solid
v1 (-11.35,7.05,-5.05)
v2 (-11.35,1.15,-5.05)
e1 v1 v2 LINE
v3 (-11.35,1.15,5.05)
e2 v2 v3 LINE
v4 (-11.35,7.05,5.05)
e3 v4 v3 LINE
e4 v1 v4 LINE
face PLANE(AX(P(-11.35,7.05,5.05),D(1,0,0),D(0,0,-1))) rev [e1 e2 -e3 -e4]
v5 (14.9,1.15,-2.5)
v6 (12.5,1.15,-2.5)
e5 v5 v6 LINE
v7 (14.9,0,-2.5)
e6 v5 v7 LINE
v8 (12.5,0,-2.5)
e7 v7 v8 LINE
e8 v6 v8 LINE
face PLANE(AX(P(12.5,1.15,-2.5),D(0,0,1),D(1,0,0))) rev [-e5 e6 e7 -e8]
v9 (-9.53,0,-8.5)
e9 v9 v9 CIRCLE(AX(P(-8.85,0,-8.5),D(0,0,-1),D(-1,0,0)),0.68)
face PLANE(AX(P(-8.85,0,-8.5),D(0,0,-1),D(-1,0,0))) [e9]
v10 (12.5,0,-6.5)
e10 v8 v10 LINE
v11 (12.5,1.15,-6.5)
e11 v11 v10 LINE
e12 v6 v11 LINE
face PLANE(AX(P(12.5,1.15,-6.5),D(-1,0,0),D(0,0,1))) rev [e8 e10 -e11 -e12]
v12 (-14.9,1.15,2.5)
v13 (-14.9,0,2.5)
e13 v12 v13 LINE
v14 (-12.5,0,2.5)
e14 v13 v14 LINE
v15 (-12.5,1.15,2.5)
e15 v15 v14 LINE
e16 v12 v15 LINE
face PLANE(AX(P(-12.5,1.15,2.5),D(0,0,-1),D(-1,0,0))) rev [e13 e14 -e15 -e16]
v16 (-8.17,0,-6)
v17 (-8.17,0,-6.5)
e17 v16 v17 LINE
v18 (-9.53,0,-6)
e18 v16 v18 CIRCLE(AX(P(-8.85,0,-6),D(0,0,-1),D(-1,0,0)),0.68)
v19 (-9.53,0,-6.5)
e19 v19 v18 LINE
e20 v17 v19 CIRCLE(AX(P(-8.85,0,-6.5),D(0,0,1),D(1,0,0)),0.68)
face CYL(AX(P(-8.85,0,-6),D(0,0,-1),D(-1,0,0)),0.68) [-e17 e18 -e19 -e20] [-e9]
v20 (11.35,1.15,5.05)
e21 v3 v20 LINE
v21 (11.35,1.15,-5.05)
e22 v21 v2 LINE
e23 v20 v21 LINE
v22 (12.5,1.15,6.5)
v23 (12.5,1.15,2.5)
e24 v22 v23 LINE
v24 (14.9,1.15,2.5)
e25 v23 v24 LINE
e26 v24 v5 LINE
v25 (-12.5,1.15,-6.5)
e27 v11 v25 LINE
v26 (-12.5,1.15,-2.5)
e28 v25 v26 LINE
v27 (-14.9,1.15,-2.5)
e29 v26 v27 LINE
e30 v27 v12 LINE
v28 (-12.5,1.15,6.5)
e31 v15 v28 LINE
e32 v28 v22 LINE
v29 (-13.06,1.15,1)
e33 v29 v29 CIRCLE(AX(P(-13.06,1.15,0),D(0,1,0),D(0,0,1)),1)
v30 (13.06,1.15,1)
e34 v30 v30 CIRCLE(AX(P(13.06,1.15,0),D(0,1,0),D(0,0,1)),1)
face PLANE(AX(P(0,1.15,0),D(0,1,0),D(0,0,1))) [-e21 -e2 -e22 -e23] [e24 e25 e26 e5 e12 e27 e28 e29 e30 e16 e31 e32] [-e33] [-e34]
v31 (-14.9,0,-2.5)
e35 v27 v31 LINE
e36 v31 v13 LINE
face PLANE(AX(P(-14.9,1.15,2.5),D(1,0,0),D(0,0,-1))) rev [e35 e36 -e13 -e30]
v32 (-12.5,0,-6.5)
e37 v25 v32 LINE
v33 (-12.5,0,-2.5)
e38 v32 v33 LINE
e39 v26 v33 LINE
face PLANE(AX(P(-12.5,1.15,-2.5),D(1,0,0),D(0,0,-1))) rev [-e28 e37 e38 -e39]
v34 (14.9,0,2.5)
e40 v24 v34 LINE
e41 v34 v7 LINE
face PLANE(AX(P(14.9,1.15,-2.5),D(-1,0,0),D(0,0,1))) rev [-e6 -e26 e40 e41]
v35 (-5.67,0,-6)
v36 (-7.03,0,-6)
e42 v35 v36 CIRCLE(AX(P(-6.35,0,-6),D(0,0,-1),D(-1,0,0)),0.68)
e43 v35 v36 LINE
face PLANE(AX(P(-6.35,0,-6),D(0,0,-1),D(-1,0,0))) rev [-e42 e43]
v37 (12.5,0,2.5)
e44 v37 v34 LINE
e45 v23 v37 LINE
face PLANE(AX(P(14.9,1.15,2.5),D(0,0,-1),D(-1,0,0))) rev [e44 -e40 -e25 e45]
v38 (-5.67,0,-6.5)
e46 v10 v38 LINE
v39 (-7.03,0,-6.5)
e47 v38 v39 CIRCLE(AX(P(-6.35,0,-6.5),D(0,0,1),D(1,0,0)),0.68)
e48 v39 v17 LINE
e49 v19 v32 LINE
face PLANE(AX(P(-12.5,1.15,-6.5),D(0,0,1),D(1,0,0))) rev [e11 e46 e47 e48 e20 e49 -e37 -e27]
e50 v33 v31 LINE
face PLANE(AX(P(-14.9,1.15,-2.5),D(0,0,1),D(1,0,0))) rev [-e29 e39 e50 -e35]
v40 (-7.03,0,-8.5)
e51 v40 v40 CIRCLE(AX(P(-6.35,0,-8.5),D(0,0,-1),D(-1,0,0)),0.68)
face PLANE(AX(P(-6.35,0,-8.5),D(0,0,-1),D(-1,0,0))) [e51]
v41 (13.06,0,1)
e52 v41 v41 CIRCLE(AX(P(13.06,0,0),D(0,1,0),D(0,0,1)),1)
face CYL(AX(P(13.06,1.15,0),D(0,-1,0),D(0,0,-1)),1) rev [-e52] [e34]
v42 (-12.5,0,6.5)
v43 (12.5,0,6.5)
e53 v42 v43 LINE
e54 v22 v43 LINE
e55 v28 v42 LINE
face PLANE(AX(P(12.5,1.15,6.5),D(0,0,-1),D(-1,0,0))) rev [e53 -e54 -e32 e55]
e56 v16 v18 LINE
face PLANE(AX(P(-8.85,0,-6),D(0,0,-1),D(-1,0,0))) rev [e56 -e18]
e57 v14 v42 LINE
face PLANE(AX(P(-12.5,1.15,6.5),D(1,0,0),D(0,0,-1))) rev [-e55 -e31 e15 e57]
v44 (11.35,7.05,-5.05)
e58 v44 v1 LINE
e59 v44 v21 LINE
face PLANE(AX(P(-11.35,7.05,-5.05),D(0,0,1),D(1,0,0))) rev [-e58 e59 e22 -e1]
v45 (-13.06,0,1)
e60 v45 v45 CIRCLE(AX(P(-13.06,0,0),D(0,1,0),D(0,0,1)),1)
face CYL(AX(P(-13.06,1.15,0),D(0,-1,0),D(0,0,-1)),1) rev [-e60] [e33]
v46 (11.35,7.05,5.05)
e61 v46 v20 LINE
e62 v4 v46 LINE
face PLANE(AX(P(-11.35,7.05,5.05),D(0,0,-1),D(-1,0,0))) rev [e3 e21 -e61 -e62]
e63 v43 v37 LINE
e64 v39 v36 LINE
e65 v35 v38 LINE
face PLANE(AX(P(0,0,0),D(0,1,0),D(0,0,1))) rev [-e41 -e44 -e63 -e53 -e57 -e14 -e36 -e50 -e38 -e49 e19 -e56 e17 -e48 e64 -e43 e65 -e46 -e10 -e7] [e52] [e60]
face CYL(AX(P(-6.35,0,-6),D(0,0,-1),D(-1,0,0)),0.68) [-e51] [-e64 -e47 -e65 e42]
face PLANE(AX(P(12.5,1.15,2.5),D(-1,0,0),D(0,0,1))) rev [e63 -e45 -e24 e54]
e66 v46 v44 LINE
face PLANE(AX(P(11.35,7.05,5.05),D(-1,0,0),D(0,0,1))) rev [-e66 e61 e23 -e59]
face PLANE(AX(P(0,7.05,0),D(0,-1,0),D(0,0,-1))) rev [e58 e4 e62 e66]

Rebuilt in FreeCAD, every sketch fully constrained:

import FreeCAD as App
import Part
import Sketcher

V = App.Vector


def add_polygon(sketch, points):
    """Adds a closed chain of lines whose ends are joined by coincident constraints."""
    first, n = sketch.GeometryCount, len(points)
    for a, b in zip(points, points[1:] + points[:1]):
        sketch.addGeometry(Part.LineSegment(App.Vector(*a, 0), App.Vector(*b, 0)), False)
    for i in range(n):
        sketch.addConstraint(Sketcher.Constraint("Coincident", first + i, 2, first + (i + 1) % n, 1))

doc = App.newDocument("Part")
body = doc.addObject("PartDesign::Body", "Body")

# Sketch on XZ plane
sketch1 = body.newObject("Sketcher::SketchObject", "Sketch")
sketch1.AttachmentSupport = (doc.getObject("XZ_Plane"), [""])
sketch1.MapMode = "FlatFace"
add_polygon(sketch1, [(12.5, -6.5), (-12.5, -6.5), (-12.5, -2.5), (-14.9, -2.5), (-14.9, 2.5), (-12.5, 2.5), (-12.5, 6.5), (12.5, 6.5), (12.5, 2.5), (14.9, 2.5), (14.9, -2.5), (12.5, -2.5)])  # lines 0-11
sketch1.addGeometry(Part.Circle(V(13.1, 0, 0), V(0, 0, 1), 1), False)  # 12
sketch1.addGeometry(Part.Circle(V(-13.1, 0, 0), V(0, 0, 1), 1), False)  # 13
sketch1.addConstraint(Sketcher.Constraint("Horizontal", 0))
sketch1.addConstraint(Sketcher.Constraint("Vertical", 1))
sketch1.addConstraint(Sketcher.Constraint("Horizontal", 2))
sketch1.addConstraint(Sketcher.Constraint("Vertical", 3))
sketch1.addConstraint(Sketcher.Constraint("Horizontal", 4))
sketch1.addConstraint(Sketcher.Constraint("Vertical", 5))
sketch1.addConstraint(Sketcher.Constraint("Horizontal", 6))
sketch1.addConstraint(Sketcher.Constraint("Vertical", 7))
sketch1.addConstraint(Sketcher.Constraint("Horizontal", 8))
sketch1.addConstraint(Sketcher.Constraint("Vertical", 9))
sketch1.addConstraint(Sketcher.Constraint("Horizontal", 10))
sketch1.addConstraint(Sketcher.Constraint("Vertical", 11))
sketch1.addConstraint(Sketcher.Constraint("Equal", 12, 13))
sketch1.addConstraint(Sketcher.Constraint("Symmetric", 12, 3, 13, 3, -1, 1))
sketch1.addConstraint(Sketcher.Constraint("Symmetric", 0, 2, 6, 2, -1, 1))
sketch1.addConstraint(Sketcher.Constraint("Symmetric", 2, 2, 8, 2, -1, 1))
sketch1.addConstraint(Sketcher.Constraint("Symmetric", 4, 2, 10, 2, -1, 1))
sketch1.addConstraint(Sketcher.Constraint("Symmetric", 4, 2, 7, 2, -2))
sketch1.addConstraint(Sketcher.Constraint("PointOnObject", 12, 3, -1))
sketch1.addConstraint(Sketcher.Constraint("Diameter", 12, 2.0))
sketch1.addConstraint(Sketcher.Constraint("DistanceX", 0, 2, 0, 1, 25.0))
sketch1.addConstraint(Sketcher.Constraint("DistanceY", 1, 1, 1, 2, 4.0))
sketch1.addConstraint(Sketcher.Constraint("DistanceY", 3, 1, 3, 2, 5.0))
sketch1.addConstraint(Sketcher.Constraint("DistanceX", 2, 2, 2, 1, 2.4))
sketch1.addConstraint(Sketcher.Constraint("DistanceX", -1, 1, 12, 3, 13.06))
pad1 = body.newObject("PartDesign::Pad", "Pad")
pad1.Profile = sketch1
pad1.Length = 1.15
pad1.Reversed = True

# Sketch on XZ plane
sketch2 = body.newObject("Sketcher::SketchObject", "Sketch001")
sketch2.AttachmentSupport = (doc.getObject("XZ_Plane"), [""])
sketch2.MapMode = "FlatFace"
sketch2.AttachmentOffset = App.Placement(V(0, 0, -1.15), App.Rotation())
add_polygon(sketch2, [(-11, -5), (-11, 5), (11, 5), (11, -5)])  # lines 0-3
sketch2.addConstraint(Sketcher.Constraint("Vertical", 0))
sketch2.addConstraint(Sketcher.Constraint("Horizontal", 1))
sketch2.addConstraint(Sketcher.Constraint("Vertical", 2))
sketch2.addConstraint(Sketcher.Constraint("Horizontal", 3))
sketch2.addConstraint(Sketcher.Constraint("Symmetric", 0, 2, 2, 2, -1, 1))
sketch2.addConstraint(Sketcher.Constraint("DistanceX", 1, 1, 1, 2, 22.7))
sketch2.addConstraint(Sketcher.Constraint("DistanceY", 0, 1, 0, 2, 10.1))
pad2 = body.newObject("PartDesign::Pad", "Pad001")
pad2.Profile = sketch2
pad2.Length = 5.9
pad2.Reversed = True

# Sketch on XY plane
sketch3 = body.newObject("Sketcher::SketchObject", "Sketch002")
sketch3.AttachmentSupport = (doc.getObject("XY_Plane"), [""])
sketch3.MapMode = "FlatFace"
sketch3.AttachmentOffset = App.Placement(V(0, 0, -6.5), App.Rotation())
sketch3.addGeometry(Part.Circle(V(-8.8, 0, 0), V(0, 0, 1), 0.7), False)
sketch3.addGeometry(Part.Circle(V(-6.3, 0, 0), V(0, 0, 1), 0.7), False)
sketch3.addConstraint(Sketcher.Constraint("Equal", 0, 1))
sketch3.addConstraint(Sketcher.Constraint("PointOnObject", 0, 3, -1))
sketch3.addConstraint(Sketcher.Constraint("PointOnObject", 1, 3, -1))
sketch3.addConstraint(Sketcher.Constraint("Diameter", 0, 1.36))
sketch3.addConstraint(Sketcher.Constraint("DistanceX", 0, 3, 1, 3, 2.5))
sketch3.addConstraint(Sketcher.Constraint("DistanceX", 0, 3, -1, 1, 8.85))
pad3 = body.newObject("PartDesign::Pad", "Pad002")
pad3.Profile = sketch3
pad3.Type = "TwoLengths"
pad3.Length = 2
pad3.Length2 = 0.5
pad3.Reversed = True

doc.recompute()
